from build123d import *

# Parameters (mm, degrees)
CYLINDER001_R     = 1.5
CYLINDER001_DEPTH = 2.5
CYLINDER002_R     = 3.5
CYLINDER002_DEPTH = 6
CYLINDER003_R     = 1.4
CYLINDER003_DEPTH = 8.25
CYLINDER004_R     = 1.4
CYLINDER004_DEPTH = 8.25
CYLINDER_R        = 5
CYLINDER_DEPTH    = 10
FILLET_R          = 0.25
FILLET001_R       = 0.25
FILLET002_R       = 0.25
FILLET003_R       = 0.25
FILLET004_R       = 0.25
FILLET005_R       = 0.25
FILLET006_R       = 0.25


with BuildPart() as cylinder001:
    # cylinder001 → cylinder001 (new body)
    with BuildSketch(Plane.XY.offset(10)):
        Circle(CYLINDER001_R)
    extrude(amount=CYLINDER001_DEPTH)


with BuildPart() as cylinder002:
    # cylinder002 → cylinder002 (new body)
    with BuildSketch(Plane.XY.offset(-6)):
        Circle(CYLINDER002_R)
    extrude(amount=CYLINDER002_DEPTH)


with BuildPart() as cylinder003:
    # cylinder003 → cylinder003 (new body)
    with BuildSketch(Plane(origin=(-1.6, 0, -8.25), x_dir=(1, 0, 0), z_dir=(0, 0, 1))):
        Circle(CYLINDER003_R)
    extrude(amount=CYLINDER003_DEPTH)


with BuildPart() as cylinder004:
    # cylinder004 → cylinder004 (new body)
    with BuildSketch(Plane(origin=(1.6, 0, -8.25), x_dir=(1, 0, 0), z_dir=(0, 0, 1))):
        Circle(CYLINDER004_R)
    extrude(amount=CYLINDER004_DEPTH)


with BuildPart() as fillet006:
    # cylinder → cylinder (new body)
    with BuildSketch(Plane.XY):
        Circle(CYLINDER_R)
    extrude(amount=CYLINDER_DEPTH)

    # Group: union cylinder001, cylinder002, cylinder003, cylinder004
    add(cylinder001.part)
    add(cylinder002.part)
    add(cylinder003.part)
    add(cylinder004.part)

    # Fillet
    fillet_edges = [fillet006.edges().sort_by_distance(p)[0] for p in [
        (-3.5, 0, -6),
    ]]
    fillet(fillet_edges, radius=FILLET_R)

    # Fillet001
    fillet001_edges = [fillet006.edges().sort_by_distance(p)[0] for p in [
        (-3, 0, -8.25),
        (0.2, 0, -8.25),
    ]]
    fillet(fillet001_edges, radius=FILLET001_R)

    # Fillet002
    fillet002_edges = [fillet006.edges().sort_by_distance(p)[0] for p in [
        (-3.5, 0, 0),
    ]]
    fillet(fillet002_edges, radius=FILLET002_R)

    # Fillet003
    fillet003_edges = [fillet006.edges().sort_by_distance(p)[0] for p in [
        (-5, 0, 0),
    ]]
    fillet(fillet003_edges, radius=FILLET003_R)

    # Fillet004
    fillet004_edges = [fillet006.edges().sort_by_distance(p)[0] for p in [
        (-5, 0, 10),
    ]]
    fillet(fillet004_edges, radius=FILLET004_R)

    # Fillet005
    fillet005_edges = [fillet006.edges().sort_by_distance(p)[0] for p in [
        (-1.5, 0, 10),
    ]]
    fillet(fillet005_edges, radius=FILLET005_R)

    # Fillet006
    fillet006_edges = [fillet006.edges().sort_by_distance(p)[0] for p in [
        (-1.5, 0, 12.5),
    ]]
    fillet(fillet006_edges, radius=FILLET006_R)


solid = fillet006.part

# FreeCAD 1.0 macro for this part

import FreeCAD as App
import Part
import Sketcher


def edges_at(feature, points):
    """Names of the edges that pass closest to the given points."""
    edges = feature.Shape.Edges
    near = lambda p: min(range(len(edges)), key=lambda i: edges[i].distToShape(Part.Vertex(*p))[0])
    return sorted({f"Edge{near(p) + 1}" for p in points})

doc = App.newDocument("Part")
body = doc.addObject("PartDesign::Body", "Body")

sketch1 = body.newObject("Sketcher::SketchObject", "Sketch")
sketch1.AttachmentSupport = (doc.getObject("XY_Plane"), [""])
sketch1.MapMode = "FlatFace"
sketch1.AttachmentOffset = App.Placement(App.Vector(0, 0, 10), App.Rotation())
sketch1.addGeometry(Part.Circle(App.Vector(0, 0, 0), App.Vector(0, 0, 1), 1.5), False)
sketch1.addConstraint(Sketcher.Constraint("Coincident", 0, 3, -1, 1))
sketch1.addConstraint(Sketcher.Constraint("Diameter", 0, 3.0))
pad1 = body.newObject("PartDesign::Pad", "Pad")
pad1.Profile = sketch1
pad1.Length = 2.5
body2 = doc.addObject("PartDesign::Body", "Body001")

sketch2 = body2.newObject("Sketcher::SketchObject", "Sketch001")
sketch2.AttachmentSupport = (doc.getObject("XY_Plane001"), [""])
sketch2.MapMode = "FlatFace"
sketch2.AttachmentOffset = App.Placement(App.Vector(0, 0, -6), App.Rotation())
sketch2.addGeometry(Part.Circle(App.Vector(0, 0, 0), App.Vector(0, 0, 1), 3.5), False)
sketch2.addConstraint(Sketcher.Constraint("Coincident", 0, 3, -1, 1))
sketch2.addConstraint(Sketcher.Constraint("Diameter", 0, 7.0))
pad2 = body2.newObject("PartDesign::Pad", "Pad001")
pad2.Profile = sketch2
pad2.Length = 6
body3 = doc.addObject("PartDesign::Body", "Body002")

sketch3 = body3.newObject("Sketcher::SketchObject", "Sketch002")
sketch3.AttachmentSupport = (doc.getObject("XY_Plane002"), [""])
sketch3.MapMode = "FlatFace"
sketch3.AttachmentOffset = App.Placement(App.Vector(0, 0, -8.25), App.Rotation())
sketch3.addGeometry(Part.Circle(App.Vector(-1.6, 0, 0), App.Vector(0, 0, 1), 1.4), False)
sketch3.addConstraint(Sketcher.Constraint("PointOnObject", 0, 3, -1))
sketch3.addConstraint(Sketcher.Constraint("Diameter", 0, 2.8))
sketch3.addConstraint(Sketcher.Constraint("DistanceX", 0, 3, -1, 1, 1.6))
pad3 = body3.newObject("PartDesign::Pad", "Pad002")
pad3.Profile = sketch3
pad3.Length = 8.25
body4 = doc.addObject("PartDesign::Body", "Body003")

sketch4 = body4.newObject("Sketcher::SketchObject", "Sketch003")
sketch4.AttachmentSupport = (doc.getObject("XY_Plane003"), [""])
sketch4.MapMode = "FlatFace"
sketch4.AttachmentOffset = App.Placement(App.Vector(0, 0, -8.25), App.Rotation())
sketch4.addGeometry(Part.Circle(App.Vector(1.6, 0, 0), App.Vector(0, 0, 1), 1.4), False)
sketch4.addConstraint(Sketcher.Constraint("PointOnObject", 0, 3, -1))
sketch4.addConstraint(Sketcher.Constraint("Diameter", 0, 2.8))
sketch4.addConstraint(Sketcher.Constraint("DistanceX", -1, 1, 0, 3, 1.6))
pad4 = body4.newObject("PartDesign::Pad", "Pad003")
pad4.Profile = sketch4
pad4.Length = 8.25
body5 = doc.addObject("PartDesign::Body", "Body004")

sketch5 = body5.newObject("Sketcher::SketchObject", "Sketch004")
sketch5.AttachmentSupport = (doc.getObject("XY_Plane004"), [""])
sketch5.MapMode = "FlatFace"
sketch5.addGeometry(Part.Circle(App.Vector(0, 0, 0), App.Vector(0, 0, 1), 5), False)
sketch5.addConstraint(Sketcher.Constraint("Coincident", 0, 3, -1, 1))
sketch5.addConstraint(Sketcher.Constraint("Diameter", 0, 10.0))
pad5 = body5.newObject("PartDesign::Pad", "Pad004")
pad5.Profile = sketch5
pad5.Length = 10
doc.recompute()

boolean = body5.newObject("PartDesign::Boolean", "Boolean")
boolean.Type = "Fuse"
boolean.addObjects([body])
doc.recompute()

boolean2 = body5.newObject("PartDesign::Boolean", "Boolean001")
boolean2.Type = "Fuse"
boolean2.addObjects([body2])
doc.recompute()

boolean3 = body5.newObject("PartDesign::Boolean", "Boolean002")
boolean3.Type = "Fuse"
boolean3.addObjects([body3])
doc.recompute()

boolean4 = body5.newObject("PartDesign::Boolean", "Boolean003")
boolean4.Type = "Fuse"
boolean4.addObjects([body4])
doc.recompute()

fillet = body5.newObject("PartDesign::Fillet", "Fillet")
fillet.Base = (boolean4, edges_at(boolean4, [(-3.5, 0, -6)]))
fillet.Radius = 0.25
doc.recompute()

fillet2 = body5.newObject("PartDesign::Fillet", "Fillet001")
fillet2.Base = (fillet, edges_at(fillet, [(-3, 0, -8.25), (0.2, 0, -8.25)]))
fillet2.Radius = 0.25
doc.recompute()

fillet3 = body5.newObject("PartDesign::Fillet", "Fillet002")
fillet3.Base = (fillet2, edges_at(fillet2, [(-3.5, 0, 0)]))
fillet3.Radius = 0.25
doc.recompute()

fillet4 = body5.newObject("PartDesign::Fillet", "Fillet003")
fillet4.Base = (fillet3, edges_at(fillet3, [(-5, 0, 0)]))
fillet4.Radius = 0.25
doc.recompute()

fillet5 = body5.newObject("PartDesign::Fillet", "Fillet004")
fillet5.Base = (fillet4, edges_at(fillet4, [(-5, 0, 10)]))
fillet5.Radius = 0.25
doc.recompute()

fillet6 = body5.newObject("PartDesign::Fillet", "Fillet005")
fillet6.Base = (fillet5, edges_at(fillet5, [(-1.5, 0, 10)]))
fillet6.Radius = 0.25
doc.recompute()

fillet7 = body5.newObject("PartDesign::Fillet", "Fillet006")
fillet7.Base = (fillet6, edges_at(fillet6, [(-1.5, 0, 12.5)]))
fillet7.Radius = 0.25

doc.recompute()
